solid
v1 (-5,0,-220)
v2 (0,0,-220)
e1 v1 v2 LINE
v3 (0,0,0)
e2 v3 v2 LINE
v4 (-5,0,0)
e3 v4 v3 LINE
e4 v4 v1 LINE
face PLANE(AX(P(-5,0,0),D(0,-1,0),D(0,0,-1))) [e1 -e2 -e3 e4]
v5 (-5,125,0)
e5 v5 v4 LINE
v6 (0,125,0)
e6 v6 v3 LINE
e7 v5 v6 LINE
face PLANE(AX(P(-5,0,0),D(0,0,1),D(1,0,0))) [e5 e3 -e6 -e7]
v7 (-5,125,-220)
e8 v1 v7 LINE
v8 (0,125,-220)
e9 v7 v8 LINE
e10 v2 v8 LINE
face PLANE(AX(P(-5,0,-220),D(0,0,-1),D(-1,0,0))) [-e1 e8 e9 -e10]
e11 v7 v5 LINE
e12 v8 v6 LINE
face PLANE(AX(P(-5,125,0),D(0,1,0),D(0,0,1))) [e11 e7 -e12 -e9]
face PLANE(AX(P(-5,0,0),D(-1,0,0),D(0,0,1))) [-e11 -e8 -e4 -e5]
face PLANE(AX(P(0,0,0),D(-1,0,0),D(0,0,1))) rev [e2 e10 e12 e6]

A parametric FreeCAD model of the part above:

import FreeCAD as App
import Part
import Sketcher
Q = App.Units.Quantity

doc = App.newDocument("Part")
body = doc.addObject("PartDesign::Body", "Body")

sketch1 = body.newObject("Sketcher::SketchObject", "Sketch")
sketch1.AttachmentSupport = (doc.getObject("YZ_Plane"), [""])
sketch1.MapMode = "FlatFace"
sketch1.addGeometry(Part.LineSegment(App.Vector(125, 0, 0), App.Vector(0, 0, 0)), False)
sketch1.addGeometry(Part.LineSegment(App.Vector(0, 0, 0), App.Vector(0, -220, 0)), False)
sketch1.addGeometry(Part.LineSegment(App.Vector(0, -220, 0), App.Vector(125, -220, 0)), False)
sketch1.addGeometry(Part.LineSegment(App.Vector(125, -220, 0), App.Vector(125, 0, 0)), False)
sketch1.addConstraint(Sketcher.Constraint("Coincident", 0, 2, 1, 1))
sketch1.addConstraint(Sketcher.Constraint("Coincident", 1, 2, 2, 1))
sketch1.addConstraint(Sketcher.Constraint("Coincident", 2, 2, 3, 1))
sketch1.addConstraint(Sketcher.Constraint("Coincident", 3, 2, 0, 1))
sketch1.addConstraint(Sketcher.Constraint("Horizontal", 0))
sketch1.addConstraint(Sketcher.Constraint("Vertical", 1))
sketch1.addConstraint(Sketcher.Constraint("Horizontal", 2))
sketch1.addConstraint(Sketcher.Constraint("Vertical", 3))
sketch1.addConstraint(Sketcher.Constraint("Coincident", 0, 2, -1, 1))
sketch1.addConstraint(Sketcher.Constraint("DistanceX", 0, 2, 0, 1, Q("125 mm")))
sketch1.addConstraint(Sketcher.Constraint("DistanceY", 1, 2, 1, 1, Q("220 mm")))
pad1 = body.newObject("PartDesign::Pad", "Pad")
pad1.Profile = sketch1
pad1.Length = 5
pad1.Reversed = True

doc.recompute()
